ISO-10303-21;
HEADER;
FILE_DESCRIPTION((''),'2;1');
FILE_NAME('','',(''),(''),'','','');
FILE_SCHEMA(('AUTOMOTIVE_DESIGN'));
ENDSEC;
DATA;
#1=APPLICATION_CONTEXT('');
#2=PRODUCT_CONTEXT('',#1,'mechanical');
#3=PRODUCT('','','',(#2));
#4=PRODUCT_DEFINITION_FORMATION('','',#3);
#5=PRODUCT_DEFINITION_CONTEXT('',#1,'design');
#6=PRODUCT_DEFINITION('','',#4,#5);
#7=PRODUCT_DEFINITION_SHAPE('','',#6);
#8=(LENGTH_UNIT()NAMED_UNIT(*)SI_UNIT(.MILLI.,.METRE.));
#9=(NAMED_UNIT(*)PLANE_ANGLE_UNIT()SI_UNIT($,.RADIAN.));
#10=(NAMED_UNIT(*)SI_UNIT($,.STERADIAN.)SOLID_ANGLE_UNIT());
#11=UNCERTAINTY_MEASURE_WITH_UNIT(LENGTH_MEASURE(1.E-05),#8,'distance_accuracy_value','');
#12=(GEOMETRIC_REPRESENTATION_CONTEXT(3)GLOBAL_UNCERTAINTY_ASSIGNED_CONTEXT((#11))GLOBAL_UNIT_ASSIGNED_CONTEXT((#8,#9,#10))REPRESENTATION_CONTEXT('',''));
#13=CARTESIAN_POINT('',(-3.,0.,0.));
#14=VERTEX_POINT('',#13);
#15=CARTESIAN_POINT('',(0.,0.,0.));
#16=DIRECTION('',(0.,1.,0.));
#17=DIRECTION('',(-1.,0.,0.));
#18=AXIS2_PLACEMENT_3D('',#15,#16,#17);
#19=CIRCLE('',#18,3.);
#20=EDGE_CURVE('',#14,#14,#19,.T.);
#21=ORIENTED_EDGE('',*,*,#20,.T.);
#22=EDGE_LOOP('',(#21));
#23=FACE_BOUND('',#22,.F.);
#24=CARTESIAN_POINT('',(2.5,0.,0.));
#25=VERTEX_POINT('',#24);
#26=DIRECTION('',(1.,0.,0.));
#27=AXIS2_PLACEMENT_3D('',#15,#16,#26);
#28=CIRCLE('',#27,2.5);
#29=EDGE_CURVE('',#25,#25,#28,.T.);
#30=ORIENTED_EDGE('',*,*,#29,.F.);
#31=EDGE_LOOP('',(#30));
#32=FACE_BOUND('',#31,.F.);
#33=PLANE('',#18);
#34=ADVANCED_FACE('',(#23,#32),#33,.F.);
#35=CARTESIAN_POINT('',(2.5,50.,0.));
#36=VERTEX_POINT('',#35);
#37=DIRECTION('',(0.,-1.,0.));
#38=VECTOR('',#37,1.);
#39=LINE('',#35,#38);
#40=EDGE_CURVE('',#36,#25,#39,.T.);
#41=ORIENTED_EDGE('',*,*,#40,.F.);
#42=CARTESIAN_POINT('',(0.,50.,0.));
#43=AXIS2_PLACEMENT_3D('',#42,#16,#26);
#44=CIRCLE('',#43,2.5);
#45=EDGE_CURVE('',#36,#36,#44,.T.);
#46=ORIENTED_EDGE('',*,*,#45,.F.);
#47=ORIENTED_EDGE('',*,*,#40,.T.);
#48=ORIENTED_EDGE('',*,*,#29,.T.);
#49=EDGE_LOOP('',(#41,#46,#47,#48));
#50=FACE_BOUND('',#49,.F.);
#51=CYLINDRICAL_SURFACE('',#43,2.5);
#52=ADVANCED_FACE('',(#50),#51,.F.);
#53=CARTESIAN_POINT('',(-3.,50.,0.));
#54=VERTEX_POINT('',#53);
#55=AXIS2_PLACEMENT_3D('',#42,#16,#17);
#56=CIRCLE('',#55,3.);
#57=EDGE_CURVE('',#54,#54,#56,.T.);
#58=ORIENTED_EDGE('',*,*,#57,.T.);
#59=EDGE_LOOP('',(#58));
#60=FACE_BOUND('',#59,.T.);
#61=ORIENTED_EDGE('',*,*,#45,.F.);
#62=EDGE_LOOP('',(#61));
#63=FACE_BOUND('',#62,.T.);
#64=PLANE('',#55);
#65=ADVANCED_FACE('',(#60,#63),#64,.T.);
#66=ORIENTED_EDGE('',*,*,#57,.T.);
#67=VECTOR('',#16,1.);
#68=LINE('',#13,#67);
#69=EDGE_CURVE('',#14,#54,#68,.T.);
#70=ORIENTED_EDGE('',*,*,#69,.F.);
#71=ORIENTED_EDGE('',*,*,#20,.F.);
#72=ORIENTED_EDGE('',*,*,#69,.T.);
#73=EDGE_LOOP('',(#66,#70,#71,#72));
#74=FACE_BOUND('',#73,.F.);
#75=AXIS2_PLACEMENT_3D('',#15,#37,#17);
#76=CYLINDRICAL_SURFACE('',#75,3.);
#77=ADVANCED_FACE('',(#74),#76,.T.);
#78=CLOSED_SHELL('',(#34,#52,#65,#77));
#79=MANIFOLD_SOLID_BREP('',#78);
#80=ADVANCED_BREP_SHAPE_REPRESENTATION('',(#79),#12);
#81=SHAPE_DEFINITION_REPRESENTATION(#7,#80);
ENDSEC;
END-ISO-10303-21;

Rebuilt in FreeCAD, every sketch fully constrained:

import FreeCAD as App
import Part
import Sketcher

doc = App.newDocument("Part")
params = doc.addObject("Spreadsheet::Sheet", "Params")
for row, (alias, value) in enumerate([
    ("sketch1_diameter", "6 mm"),
    ("pad1_length", "50 mm"),
    ("sketch2_diameter", "5 mm"),
    ("pocket1_length", "50 mm"),
], start=1):
    params.set(f"A{row}", alias)
    params.set(f"B{row}", "=" + value)
    params.setAlias(f"B{row}", alias)

body = doc.addObject("PartDesign::Body", "Body")

# Sketch on XZ plane
sketch1 = body.newObject("Sketcher::SketchObject", "Sketch")
sketch1.AttachmentSupport = (doc.getObject("XZ_Plane"), [""])
sketch1.MapMode = "FlatFace"
sketch1.addGeometry(Part.Circle(App.Vector(0, 0, 0), App.Vector(0, 0, 1), 3), False)
sketch1.addConstraint(Sketcher.Constraint("Coincident", 0, 3, -1, 1))
sketch1.addConstraint(Sketcher.Constraint("Diameter", 0, 6.0))
sketch1.setExpression("Constraints[1]", "Params.sketch1_diameter")
pad1 = body.newObject("PartDesign::Pad", "Pad")
pad1.Profile = sketch1
pad1.setExpression("Length", "Params.pad1_length")
pad1.Reversed = True

# Sketch on XZ plane
sketch2 = body.newObject("Sketcher::SketchObject", "Sketch001")
sketch2.AttachmentSupport = (doc.getObject("XZ_Plane"), [""])
sketch2.MapMode = "FlatFace"
sketch2.AttachmentOffset = App.Placement(App.Vector(0, 0, -50), App.Rotation())
sketch2.addGeometry(Part.Circle(App.Vector(0, 0, 0), App.Vector(0, 0, 1), 2.5), False)
sketch2.addConstraint(Sketcher.Constraint("Coincident", 0, 3, -1, 1))
sketch2.addConstraint(Sketcher.Constraint("Diameter", 0, 5.0))
sketch2.setExpression("Constraints[1]", "Params.sketch2_diameter")
pocket1 = body.newObject("PartDesign::Pocket", "Pocket")
pocket1.Profile = sketch2
pocket1.setExpression("Length", "Params.pocket1_length")
pocket1.Reversed = True

doc.recompute()
